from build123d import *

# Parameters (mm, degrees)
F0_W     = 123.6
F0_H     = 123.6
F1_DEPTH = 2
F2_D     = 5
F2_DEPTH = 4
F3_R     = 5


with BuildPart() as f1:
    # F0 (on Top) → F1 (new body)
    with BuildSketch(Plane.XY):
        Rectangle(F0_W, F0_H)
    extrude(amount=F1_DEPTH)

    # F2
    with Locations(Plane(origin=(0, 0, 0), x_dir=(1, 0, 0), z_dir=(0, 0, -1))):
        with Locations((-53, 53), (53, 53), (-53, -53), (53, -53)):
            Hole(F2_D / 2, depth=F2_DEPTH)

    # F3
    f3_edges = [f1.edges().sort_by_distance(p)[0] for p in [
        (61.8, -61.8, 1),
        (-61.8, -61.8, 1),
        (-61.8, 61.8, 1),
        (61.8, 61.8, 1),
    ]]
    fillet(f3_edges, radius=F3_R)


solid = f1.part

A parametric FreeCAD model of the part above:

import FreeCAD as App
import Part
import Sketcher
from FreeCAD import Vector


def edges_at(feature, points):
    """Names of the edges that pass closest to the given points."""
    edges = feature.Shape.Edges
    near = lambda p: min(range(len(edges)), key=lambda i: edges[i].distToShape(Part.Vertex(*p))[0])
    return sorted({f"Edge{near(p) + 1}" for p in points})

doc = App.newDocument("Part")
body = doc.addObject("PartDesign::Body", "Body")

# Sketch on XY plane
sketch1 = doc.addObject("Sketcher::SketchObject", "Sketch")
body.addObject(sketch1)
sketch1.AttachmentSupport = (doc.XY_Plane, [""])
sketch1.MapMode = "FlatFace"
sketch1.addGeometry([
    Part.LineSegment(Vector(-62, 62, 0), Vector(-62, -62, 0)),
    Part.LineSegment(Vector(-62, -62, 0), Vector(62, -62, 0)),
    Part.LineSegment(Vector(62, -62, 0), Vector(62, 62, 0)),
    Part.LineSegment(Vector(62, 62, 0), Vector(-62, 62, 0)),
], False)
sketch1.addConstraint([
    Sketcher.Constraint("Coincident", 0, 2, 1, 1),
    Sketcher.Constraint("Coincident", 1, 2, 2, 1),
    Sketcher.Constraint("Coincident", 2, 2, 3, 1),
    Sketcher.Constraint("Coincident", 3, 2, 0, 1),
    Sketcher.Constraint("Vertical", 0),
    Sketcher.Constraint("Horizontal", 1),
    Sketcher.Constraint("Vertical", 2),
    Sketcher.Constraint("Horizontal", 3),
    Sketcher.Constraint("Symmetric", 0, 2, 2, 2, -1, 1),
    Sketcher.Constraint("Equal", 3, 0),
    Sketcher.Constraint("DistanceX", 1, 1, 1, 2, 123.6),
])
pad1 = doc.addObject("PartDesign::Pad", "Pad")
body.addObject(pad1)
pad1.Profile = sketch1
pad1.Length = 2

# Sketch on XY plane
sketch2 = doc.addObject("Sketcher::SketchObject", "Sketch001")
body.addObject(sketch2)
sketch2.AttachmentSupport = (doc.XY_Plane, [""])
sketch2.MapMode = "FlatFace"
sketch2.addGeometry([
    Part.Circle(Vector(-53, -53, 0), Vector(0, 0, 1), 2.5),
    Part.Circle(Vector(53, -53, 0), Vector(0, 0, 1), 2.5),
    Part.Circle(Vector(-53, 53, 0), Vector(0, 0, 1), 2.5),
    Part.Circle(Vector(53, 53, 0), Vector(0, 0, 1), 2.5),
], False)
sketch2.addConstraint([
    Sketcher.Constraint("Equal", 0, 1),
    Sketcher.Constraint("Equal", 1, 2),
    Sketcher.Constraint("Equal", 2, 3),
    Sketcher.Constraint("Symmetric", 1, 3, 2, 3, -1, 1),
    Sketcher.Constraint("Symmetric", 0, 3, 3, 3, -1, 1),
    Sketcher.Constraint("Symmetric", 0, 3, 1, 3, -2),
    Sketcher.Constraint("Diameter", 0, 5.0),
    Sketcher.Constraint("DistanceX", 0, 3, -1, 1, 53.0),
    Sketcher.Constraint("DistanceY", 0, 3, -1, 1, 53.0),
])
doc.recompute()
hole = doc.addObject("PartDesign::Hole", "Hole")
body.addObject(hole)
hole.Profile = sketch2
hole.ThreadType = "None"
hole.Diameter = 5
hole.DepthType = "Dimension"
hole.Depth = 4
hole.DrillPoint = "Flat"
hole.Reversed = True
doc.recompute()

fillet = doc.addObject("PartDesign::Fillet", "Fillet")
body.addObject(fillet)
fillet.Base = (hole, edges_at(hole, [
    (61.8, -61.8, 1),
    (-61.8, -61.8, 1),
    (-61.8, 61.8, 1),
    (61.8, 61.8, 1),
]))
fillet.Radius = 5

doc.recompute()
